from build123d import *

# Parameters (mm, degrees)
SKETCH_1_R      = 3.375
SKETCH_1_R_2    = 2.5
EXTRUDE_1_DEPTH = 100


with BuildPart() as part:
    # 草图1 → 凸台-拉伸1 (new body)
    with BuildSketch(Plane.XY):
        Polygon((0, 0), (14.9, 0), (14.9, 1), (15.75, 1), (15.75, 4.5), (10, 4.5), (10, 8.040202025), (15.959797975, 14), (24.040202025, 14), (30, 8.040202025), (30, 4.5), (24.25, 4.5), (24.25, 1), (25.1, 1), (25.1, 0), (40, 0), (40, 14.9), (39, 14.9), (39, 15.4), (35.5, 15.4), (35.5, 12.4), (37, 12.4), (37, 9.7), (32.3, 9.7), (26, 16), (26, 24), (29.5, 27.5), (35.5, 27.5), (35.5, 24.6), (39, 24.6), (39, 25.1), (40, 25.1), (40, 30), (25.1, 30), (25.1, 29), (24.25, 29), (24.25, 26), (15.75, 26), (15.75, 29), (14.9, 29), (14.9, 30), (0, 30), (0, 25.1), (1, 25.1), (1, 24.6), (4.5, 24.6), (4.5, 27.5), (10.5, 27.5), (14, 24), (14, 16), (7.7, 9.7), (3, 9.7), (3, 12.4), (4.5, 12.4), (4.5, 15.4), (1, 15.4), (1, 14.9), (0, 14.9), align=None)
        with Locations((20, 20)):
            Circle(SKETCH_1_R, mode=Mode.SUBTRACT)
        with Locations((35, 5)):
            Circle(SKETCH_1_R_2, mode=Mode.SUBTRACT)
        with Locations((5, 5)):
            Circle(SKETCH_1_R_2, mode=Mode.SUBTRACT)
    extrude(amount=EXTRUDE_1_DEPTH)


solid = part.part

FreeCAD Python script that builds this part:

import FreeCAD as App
import Part
import Sketcher

doc = App.newDocument("Part")
body = doc.addObject("PartDesign::Body", "Body")

# Sketch on XY plane
sketch1 = body.newObject("Sketcher::SketchObject", "Sketch")
sketch1.AttachmentSupport = (doc.getObject("XY_Plane"), [""])
sketch1.MapMode = "FlatFace"
sketch1.addGeometry([
    Part.LineSegment(App.Vector(0, 0, 0), App.Vector(14.9, 0, 0)),  # 0
    Part.LineSegment(App.Vector(14.9, 0, 0), App.Vector(14.9, 1, 0)),  # 1
    Part.LineSegment(App.Vector(14.9, 1, 0), App.Vector(15.75, 1, 0)),  # 2
    Part.LineSegment(App.Vector(15.75, 1, 0), App.Vector(15.75, 4.5, 0)),  # 3
    Part.LineSegment(App.Vector(15.75, 4.5, 0), App.Vector(10, 4.5, 0)),  # 4
    Part.LineSegment(App.Vector(10, 4.5, 0), App.Vector(10, 8.040202, 0)),  # 5
    Part.LineSegment(App.Vector(10, 8.040202, 0), App.Vector(15.959798, 14, 0)),  # 6
    Part.LineSegment(App.Vector(15.959798, 14, 0), App.Vector(24.040202, 14, 0)),  # 7
    Part.LineSegment(App.Vector(24.040202, 14, 0), App.Vector(30, 8.040202, 0)),  # 8
    Part.LineSegment(App.Vector(30, 8.040202, 0), App.Vector(30, 4.5, 0)),  # 9
    Part.LineSegment(App.Vector(30, 4.5, 0), App.Vector(24.25, 4.5, 0)),  # 10
    Part.LineSegment(App.Vector(24.25, 4.5, 0), App.Vector(24.25, 1, 0)),  # 11
    Part.LineSegment(App.Vector(24.25, 1, 0), App.Vector(25.1, 1, 0)),  # 12
    Part.LineSegment(App.Vector(25.1, 1, 0), App.Vector(25.1, 0, 0)),  # 13
    Part.LineSegment(App.Vector(25.1, 0, 0), App.Vector(40, 0, 0)),  # 14
    Part.LineSegment(App.Vector(40, 0, 0), App.Vector(40, 14.9, 0)),  # 15
    Part.LineSegment(App.Vector(40, 14.9, 0), App.Vector(39, 14.9, 0)),  # 16
    Part.LineSegment(App.Vector(39, 14.9, 0), App.Vector(39, 15.4, 0)),  # 17
    Part.LineSegment(App.Vector(39, 15.4, 0), App.Vector(35.5, 15.4, 0)),  # 18
    Part.LineSegment(App.Vector(35.5, 15.4, 0), App.Vector(35.5, 12.4, 0)),  # 19
    Part.LineSegment(App.Vector(35.5, 12.4, 0), App.Vector(37, 12.4, 0)),  # 20
    Part.LineSegment(App.Vector(37, 12.4, 0), App.Vector(37, 9.7, 0)),  # 21
    Part.LineSegment(App.Vector(37, 9.7, 0), App.Vector(32.3, 9.7, 0)),  # 22
    Part.LineSegment(App.Vector(32.3, 9.7, 0), App.Vector(26, 16, 0)),  # 23
    Part.LineSegment(App.Vector(26, 16, 0), App.Vector(26, 24, 0)),  # 24
    Part.LineSegment(App.Vector(26, 24, 0), App.Vector(29.5, 27.5, 0)),  # 25
    Part.LineSegment(App.Vector(29.5, 27.5, 0), App.Vector(35.5, 27.5, 0)),  # 26
    Part.LineSegment(App.Vector(35.5, 27.5, 0), App.Vector(35.5, 24.6, 0)),  # 27
    Part.LineSegment(App.Vector(35.5, 24.6, 0), App.Vector(39, 24.6, 0)),  # 28
    Part.LineSegment(App.Vector(39, 24.6, 0), App.Vector(39, 25.1, 0)),  # 29
    Part.LineSegment(App.Vector(39, 25.1, 0), App.Vector(40, 25.1, 0)),  # 30
    Part.LineSegment(App.Vector(40, 25.1, 0), App.Vector(40, 30, 0)),  # 31
    Part.LineSegment(App.Vector(40, 30, 0), App.Vector(25.1, 30, 0)),  # 32
    Part.LineSegment(App.Vector(25.1, 30, 0), App.Vector(25.1, 29, 0)),  # 33
    Part.LineSegment(App.Vector(25.1, 29, 0), App.Vector(24.25, 29, 0)),  # 34
    Part.LineSegment(App.Vector(24.25, 29, 0), App.Vector(24.25, 26, 0)),  # 35
    Part.LineSegment(App.Vector(24.25, 26, 0), App.Vector(15.75, 26, 0)),  # 36
    Part.LineSegment(App.Vector(15.75, 26, 0), App.Vector(15.75, 29, 0)),  # 37
    Part.LineSegment(App.Vector(15.75, 29, 0), App.Vector(14.9, 29, 0)),  # 38
    Part.LineSegment(App.Vector(14.9, 29, 0), App.Vector(14.9, 30, 0)),  # 39
    Part.LineSegment(App.Vector(14.9, 30, 0), App.Vector(0, 30, 0)),  # 40
    Part.LineSegment(App.Vector(0, 30, 0), App.Vector(0, 25.1, 0)),  # 41
    Part.LineSegment(App.Vector(0, 25.1, 0), App.Vector(1, 25.1, 0)),  # 42
    Part.LineSegment(App.Vector(1, 25.1, 0), App.Vector(1, 24.6, 0)),  # 43
    Part.LineSegment(App.Vector(1, 24.6, 0), App.Vector(4.5, 24.6, 0)),  # 44
    Part.LineSegment(App.Vector(4.5, 24.6, 0), App.Vector(4.5, 27.5, 0)),  # 45
    Part.LineSegment(App.Vector(4.5, 27.5, 0), App.Vector(10.5, 27.5, 0)),  # 46
    Part.LineSegment(App.Vector(10.5, 27.5, 0), App.Vector(14, 24, 0)),  # 47
    Part.LineSegment(App.Vector(14, 24, 0), App.Vector(14, 16, 0)),  # 48
    Part.LineSegment(App.Vector(14, 16, 0), App.Vector(7.7, 9.7, 0)),  # 49
    Part.LineSegment(App.Vector(7.7, 9.7, 0), App.Vector(3, 9.7, 0)),  # 50
    Part.LineSegment(App.Vector(3, 9.7, 0), App.Vector(3, 12.4, 0)),  # 51
    Part.LineSegment(App.Vector(3, 12.4, 0), App.Vector(4.5, 12.4, 0)),  # 52
    Part.LineSegment(App.Vector(4.5, 12.4, 0), App.Vector(4.5, 15.4, 0)),  # 53
    Part.LineSegment(App.Vector(4.5, 15.4, 0), App.Vector(1, 15.4, 0)),  # 54
    Part.LineSegment(App.Vector(1, 15.4, 0), App.Vector(1, 14.9, 0)),  # 55
    Part.LineSegment(App.Vector(1, 14.9, 0), App.Vector(0, 14.9, 0)),  # 56
    Part.LineSegment(App.Vector(0, 14.9, 0), App.Vector(0, 0, 0)),  # 57
    Part.Circle(App.Vector(5, 5, 0), App.Vector(0, 0, 1), 2.5),  # 58
    Part.Circle(App.Vector(35, 5, 0), App.Vector(0, 0, 1), 2.5),  # 59
    Part.Circle(App.Vector(20, 20, 0), App.Vector(0, 0, 1), 3.375),  # 60
], False)
sketch1.addConstraint([
    Sketcher.Constraint("Coincident", 0, 2, 1, 1),
    Sketcher.Constraint("Coincident", 1, 2, 2, 1),
    Sketcher.Constraint("Coincident", 2, 2, 3, 1),
    Sketcher.Constraint("Coincident", 3, 2, 4, 1),
    Sketcher.Constraint("Coincident", 4, 2, 5, 1),
    Sketcher.Constraint("Coincident", 5, 2, 6, 1),
    Sketcher.Constraint("Coincident", 6, 2, 7, 1),
    Sketcher.Constraint("Coincident", 7, 2, 8, 1),
    Sketcher.Constraint("Coincident", 8, 2, 9, 1),
    Sketcher.Constraint("Coincident", 9, 2, 10, 1),
    Sketcher.Constraint("Coincident", 10, 2, 11, 1),
    Sketcher.Constraint("Coincident", 11, 2, 12, 1),
    Sketcher.Constraint("Coincident", 12, 2, 13, 1),
    Sketcher.Constraint("Coincident", 13, 2, 14, 1),
    Sketcher.Constraint("Coincident", 14, 2, 15, 1),
    Sketcher.Constraint("Coincident", 15, 2, 16, 1),
    Sketcher.Constraint("Coincident", 16, 2, 17, 1),
    Sketcher.Constraint("Coincident", 17, 2, 18, 1),
    Sketcher.Constraint("Coincident", 18, 2, 19, 1),
    Sketcher.Constraint("Coincident", 19, 2, 20, 1),
    Sketcher.Constraint("Coincident", 20, 2, 21, 1),
    Sketcher.Constraint("Coincident", 21, 2, 22, 1),
    Sketcher.Constraint("Coincident", 22, 2, 23, 1),
    Sketcher.Constraint("Coincident", 23, 2, 24, 1),
    Sketcher.Constraint("Coincident", 24, 2, 25, 1),
    Sketcher.Constraint("Coincident", 25, 2, 26, 1),
    Sketcher.Constraint("Coincident", 26, 2, 27, 1),
    Sketcher.Constraint("Coincident", 27, 2, 28, 1),
    Sketcher.Constraint("Coincident", 28, 2, 29, 1),
    Sketcher.Constraint("Coincident", 29, 2, 30, 1),
    Sketcher.Constraint("Coincident", 30, 2, 31, 1),
    Sketcher.Constraint("Coincident", 31, 2, 32, 1),
    Sketcher.Constraint("Coincident", 32, 2, 33, 1),
    Sketcher.Constraint("Coincident", 33, 2, 34, 1),
    Sketcher.Constraint("Coincident", 34, 2, 35, 1),
    Sketcher.Constraint("Coincident", 35, 2, 36, 1),
    Sketcher.Constraint("Coincident", 36, 2, 37, 1),
    Sketcher.Constraint("Coincident", 37, 2, 38, 1),
    Sketcher.Constraint("Coincident", 38, 2, 39, 1),
    Sketcher.Constraint("Coincident", 39, 2, 40, 1),
    Sketcher.Constraint("Coincident", 40, 2, 41, 1),
    Sketcher.Constraint("Coincident", 41, 2, 42, 1),
    Sketcher.Constraint("Coincident", 42, 2, 43, 1),
    Sketcher.Constraint("Coincident", 43, 2, 44, 1),
    Sketcher.Constraint("Coincident", 44, 2, 45, 1),
    Sketcher.Constraint("Coincident", 45, 2, 46, 1),
    Sketcher.Constraint("Coincident", 46, 2, 47, 1),
    Sketcher.Constraint("Coincident", 47, 2, 48, 1),
    Sketcher.Constraint("Coincident", 48, 2, 49, 1),
    Sketcher.Constraint("Coincident", 49, 2, 50, 1),
    Sketcher.Constraint("Coincident", 50, 2, 51, 1),
    Sketcher.Constraint("Coincident", 51, 2, 52, 1),
    Sketcher.Constraint("Coincident", 52, 2, 53, 1),
    Sketcher.Constraint("Coincident", 53, 2, 54, 1),
    Sketcher.Constraint("Coincident", 54, 2, 55, 1),
    Sketcher.Constraint("Coincident", 55, 2, 56, 1),
    Sketcher.Constraint("Coincident", 56, 2, 57, 1),
    Sketcher.Constraint("Coincident", 57, 2, 0, 1),
    Sketcher.Constraint("Horizontal", 0),
    Sketcher.Constraint("Vertical", 1),
    Sketcher.Constraint("Horizontal", 2),
    Sketcher.Constraint("Vertical", 3),
    Sketcher.Constraint("Horizontal", 4),
    Sketcher.Constraint("Vertical", 5),
    Sketcher.Constraint("Horizontal", 7),
    Sketcher.Constraint("Vertical", 9),
    Sketcher.Constraint("Horizontal", 10),
    Sketcher.Constraint("Vertical", 11),
    Sketcher.Constraint("Horizontal", 12),
    Sketcher.Constraint("Vertical", 13),
    Sketcher.Constraint("Horizontal", 14),
    Sketcher.Constraint("Vertical", 15),
    Sketcher.Constraint("Horizontal", 16),
    Sketcher.Constraint("Vertical", 17),
    Sketcher.Constraint("Horizontal", 18),
    Sketcher.Constraint("Vertical", 19),
    Sketcher.Constraint("Horizontal", 20),
    Sketcher.Constraint("Vertical", 21),
    Sketcher.Constraint("Horizontal", 22),
    Sketcher.Constraint("Vertical", 24),
    Sketcher.Constraint("Horizontal", 26),
    Sketcher.Constraint("Vertical", 27),
    Sketcher.Constraint("Horizontal", 28),
    Sketcher.Constraint("Vertical", 29),
    Sketcher.Constraint("Horizontal", 30),
    Sketcher.Constraint("Vertical", 31),
    Sketcher.Constraint("Horizontal", 32),
    Sketcher.Constraint("Vertical", 33),
    Sketcher.Constraint("Horizontal", 34),
    Sketcher.Constraint("Vertical", 35),
    Sketcher.Constraint("Horizontal", 36),
    Sketcher.Constraint("Vertical", 37),
    Sketcher.Constraint("Horizontal", 38),
    Sketcher.Constraint("Vertical", 39),
    Sketcher.Constraint("Horizontal", 40),
    Sketcher.Constraint("Vertical", 41),
    Sketcher.Constraint("Horizontal", 42),
    Sketcher.Constraint("Vertical", 43),
    Sketcher.Constraint("Horizontal", 44),
    Sketcher.Constraint("Vertical", 45),
    Sketcher.Constraint("Horizontal", 46),
    Sketcher.Constraint("Vertical", 48),
    Sketcher.Constraint("Horizontal", 50),
    Sketcher.Constraint("Vertical", 51),
    Sketcher.Constraint("Horizontal", 52),
    Sketcher.Constraint("Vertical", 53),
    Sketcher.Constraint("Horizontal", 54),
    Sketcher.Constraint("Vertical", 55),
    Sketcher.Constraint("Horizontal", 56),
    Sketcher.Constraint("Vertical", 57),
    Sketcher.Constraint("Coincident", 57, 2, -1, 1),
    Sketcher.Constraint("Equal", 58, 59),
    Sketcher.Constraint("PointOnObject", 13, 2, -1),
    Sketcher.Constraint("PointOnObject", 40, 2, -2),
    Sketcher.Constraint("Perpendicular", 6, 8),
    Sketcher.Constraint("Parallel", 8, 23),
    Sketcher.Constraint("Perpendicular", 23, 25),
    Sketcher.Constraint("Perpendicular", 25, 47),
    Sketcher.Constraint("Perpendicular", 47, 49),
    Sketcher.Constraint("Horizontal", 58, 3, 59, 3),
    Sketcher.Constraint("Horizontal", 5, 2, 8, 2),
    Sketcher.Constraint("Horizontal", 4, 2, 9, 2),
    Sketcher.Constraint("Horizontal", 2, 2, 11, 2),
    Sketcher.Constraint("Horizontal", 34, 2, 37, 2),
    Sketcher.Constraint("Horizontal", 32, 2, 39, 2),
    Sketcher.Constraint("Horizontal", 30, 2, 41, 2),
    Sketcher.Constraint("Horizontal", 28, 2, 43, 2),
    Sketcher.Constraint("Horizontal", 26, 2, 45, 2),
    Sketcher.Constraint("Horizontal", 24, 2, 47, 2),
    Sketcher.Constraint("Horizontal", 23, 2, 48, 2),
    Sketcher.Constraint("Horizontal", 22, 2, 49, 2),
    Sketcher.Constraint("Horizontal", 20, 2, 51, 2),
    Sketcher.Constraint("Horizontal", 18, 2, 53, 2),
    Sketcher.Constraint("Horizontal", 16, 2, 55, 2),
    Sketcher.Constraint("Vertical", 19, 2, 26, 2),
    Sketcher.Constraint("Vertical", 17, 2, 28, 2),
    Sketcher.Constraint("Vertical", 15, 2, 30, 2),
    Sketcher.Constraint("Vertical", 13, 2, 32, 2),
    Sketcher.Constraint("Vertical", 11, 2, 34, 2),
    Sketcher.Constraint("Vertical", 3, 2, 36, 2),
    Sketcher.Constraint("Vertical", 1, 2, 38, 2),
    Sketcher.Constraint("Vertical", 45, 2, 52, 2),
    Sketcher.Constraint("Vertical", 43, 2, 54, 2),
    Sketcher.Constraint("Equal", 4, 10),
    Sketcher.Constraint("Equal", 2, 12),
    Sketcher.Constraint("Equal", 0, 14),
    Sketcher.Constraint("Equal", 30, 42),
    Sketcher.Constraint("Equal", 28, 44),
    Sketcher.Constraint("Equal", 26, 46),
    Sketcher.Constraint("Equal", 22, 50),
    Sketcher.Constraint("Equal", 20, 52),
    Sketcher.Constraint("Equal", 56, 1),
    Sketcher.Constraint("Equal", 54, 3),
    Sketcher.Constraint("Equal", 40, 15),
    Sketcher.Constraint("Equal", 17, 29),
    Sketcher.Constraint("Equal", 13, 33),
    Sketcher.Constraint("Equal", 19, 35),
    Sketcher.Constraint("Diameter", 58, 5.0),
    Sketcher.Constraint("Diameter", 60, 6.75),
    Sketcher.Constraint("DistanceX", 16, 2, 16, 1, 1.0),
    Sketcher.Constraint("DistanceX", 26, 1, 26, 2, 6.0),
    Sketcher.Constraint("DistanceY", 19, 2, 19, 1, 3.0),
    Sketcher.Constraint("DistanceY", 24, 1, 24, 2, 8.0),
    Sketcher.Constraint("DistanceX", 0, 1, 0, 2, 14.9),
    Sketcher.Constraint("DistanceX", 18, 2, 18, 1, 3.5),
    Sketcher.Constraint("DistanceX", 20, 1, 20, 2, 1.5),
    Sketcher.Constraint("DistanceX", 22, 2, 22, 1, 4.7),
    Sketcher.Constraint("DistanceX", 36, 2, 36, 1, 8.5),
    Sketcher.Constraint("DistanceY", 17, 1, 17, 2, 0.5),
    Sketcher.Constraint("DistanceY", 21, 2, 21, 1, 2.7),
    Sketcher.Constraint("DistanceY", 27, 2, 27, 1, 2.9),
    Sketcher.Constraint("DistanceY", 31, 1, 31, 2, 4.9),
    Sketcher.Constraint("DistanceX", -1, 1, 58, 3, 5.0),
    Sketcher.Constraint("DistanceY", -1, 1, 58, 3, 5.0),
    Sketcher.Constraint("DistanceX", -1, 1, 59, 3, 35.0),
    Sketcher.Constraint("DistanceX", -1, 1, 60, 3, 20.0),
    Sketcher.Constraint("DistanceY", -1, 1, 60, 3, 20.0),
    Sketcher.Constraint("DistanceX", -1, 1, 4, 2, 10.0),
    Sketcher.Constraint("DistanceY", -1, 1, 6, 2, 14.0),
    Sketcher.Constraint("DistanceX", -1, 1, 8, 2, 30.0),
    Sketcher.Constraint("DistanceX", -1, 1, 23, 2, 26.0),
    Sketcher.Constraint("DistanceX", 7, 1, 7, 2, 8.080404),
])
pad1 = body.newObject("PartDesign::Pad", "Pad")
pad1.Profile = sketch1
pad1.Length = 100

doc.recompute()
